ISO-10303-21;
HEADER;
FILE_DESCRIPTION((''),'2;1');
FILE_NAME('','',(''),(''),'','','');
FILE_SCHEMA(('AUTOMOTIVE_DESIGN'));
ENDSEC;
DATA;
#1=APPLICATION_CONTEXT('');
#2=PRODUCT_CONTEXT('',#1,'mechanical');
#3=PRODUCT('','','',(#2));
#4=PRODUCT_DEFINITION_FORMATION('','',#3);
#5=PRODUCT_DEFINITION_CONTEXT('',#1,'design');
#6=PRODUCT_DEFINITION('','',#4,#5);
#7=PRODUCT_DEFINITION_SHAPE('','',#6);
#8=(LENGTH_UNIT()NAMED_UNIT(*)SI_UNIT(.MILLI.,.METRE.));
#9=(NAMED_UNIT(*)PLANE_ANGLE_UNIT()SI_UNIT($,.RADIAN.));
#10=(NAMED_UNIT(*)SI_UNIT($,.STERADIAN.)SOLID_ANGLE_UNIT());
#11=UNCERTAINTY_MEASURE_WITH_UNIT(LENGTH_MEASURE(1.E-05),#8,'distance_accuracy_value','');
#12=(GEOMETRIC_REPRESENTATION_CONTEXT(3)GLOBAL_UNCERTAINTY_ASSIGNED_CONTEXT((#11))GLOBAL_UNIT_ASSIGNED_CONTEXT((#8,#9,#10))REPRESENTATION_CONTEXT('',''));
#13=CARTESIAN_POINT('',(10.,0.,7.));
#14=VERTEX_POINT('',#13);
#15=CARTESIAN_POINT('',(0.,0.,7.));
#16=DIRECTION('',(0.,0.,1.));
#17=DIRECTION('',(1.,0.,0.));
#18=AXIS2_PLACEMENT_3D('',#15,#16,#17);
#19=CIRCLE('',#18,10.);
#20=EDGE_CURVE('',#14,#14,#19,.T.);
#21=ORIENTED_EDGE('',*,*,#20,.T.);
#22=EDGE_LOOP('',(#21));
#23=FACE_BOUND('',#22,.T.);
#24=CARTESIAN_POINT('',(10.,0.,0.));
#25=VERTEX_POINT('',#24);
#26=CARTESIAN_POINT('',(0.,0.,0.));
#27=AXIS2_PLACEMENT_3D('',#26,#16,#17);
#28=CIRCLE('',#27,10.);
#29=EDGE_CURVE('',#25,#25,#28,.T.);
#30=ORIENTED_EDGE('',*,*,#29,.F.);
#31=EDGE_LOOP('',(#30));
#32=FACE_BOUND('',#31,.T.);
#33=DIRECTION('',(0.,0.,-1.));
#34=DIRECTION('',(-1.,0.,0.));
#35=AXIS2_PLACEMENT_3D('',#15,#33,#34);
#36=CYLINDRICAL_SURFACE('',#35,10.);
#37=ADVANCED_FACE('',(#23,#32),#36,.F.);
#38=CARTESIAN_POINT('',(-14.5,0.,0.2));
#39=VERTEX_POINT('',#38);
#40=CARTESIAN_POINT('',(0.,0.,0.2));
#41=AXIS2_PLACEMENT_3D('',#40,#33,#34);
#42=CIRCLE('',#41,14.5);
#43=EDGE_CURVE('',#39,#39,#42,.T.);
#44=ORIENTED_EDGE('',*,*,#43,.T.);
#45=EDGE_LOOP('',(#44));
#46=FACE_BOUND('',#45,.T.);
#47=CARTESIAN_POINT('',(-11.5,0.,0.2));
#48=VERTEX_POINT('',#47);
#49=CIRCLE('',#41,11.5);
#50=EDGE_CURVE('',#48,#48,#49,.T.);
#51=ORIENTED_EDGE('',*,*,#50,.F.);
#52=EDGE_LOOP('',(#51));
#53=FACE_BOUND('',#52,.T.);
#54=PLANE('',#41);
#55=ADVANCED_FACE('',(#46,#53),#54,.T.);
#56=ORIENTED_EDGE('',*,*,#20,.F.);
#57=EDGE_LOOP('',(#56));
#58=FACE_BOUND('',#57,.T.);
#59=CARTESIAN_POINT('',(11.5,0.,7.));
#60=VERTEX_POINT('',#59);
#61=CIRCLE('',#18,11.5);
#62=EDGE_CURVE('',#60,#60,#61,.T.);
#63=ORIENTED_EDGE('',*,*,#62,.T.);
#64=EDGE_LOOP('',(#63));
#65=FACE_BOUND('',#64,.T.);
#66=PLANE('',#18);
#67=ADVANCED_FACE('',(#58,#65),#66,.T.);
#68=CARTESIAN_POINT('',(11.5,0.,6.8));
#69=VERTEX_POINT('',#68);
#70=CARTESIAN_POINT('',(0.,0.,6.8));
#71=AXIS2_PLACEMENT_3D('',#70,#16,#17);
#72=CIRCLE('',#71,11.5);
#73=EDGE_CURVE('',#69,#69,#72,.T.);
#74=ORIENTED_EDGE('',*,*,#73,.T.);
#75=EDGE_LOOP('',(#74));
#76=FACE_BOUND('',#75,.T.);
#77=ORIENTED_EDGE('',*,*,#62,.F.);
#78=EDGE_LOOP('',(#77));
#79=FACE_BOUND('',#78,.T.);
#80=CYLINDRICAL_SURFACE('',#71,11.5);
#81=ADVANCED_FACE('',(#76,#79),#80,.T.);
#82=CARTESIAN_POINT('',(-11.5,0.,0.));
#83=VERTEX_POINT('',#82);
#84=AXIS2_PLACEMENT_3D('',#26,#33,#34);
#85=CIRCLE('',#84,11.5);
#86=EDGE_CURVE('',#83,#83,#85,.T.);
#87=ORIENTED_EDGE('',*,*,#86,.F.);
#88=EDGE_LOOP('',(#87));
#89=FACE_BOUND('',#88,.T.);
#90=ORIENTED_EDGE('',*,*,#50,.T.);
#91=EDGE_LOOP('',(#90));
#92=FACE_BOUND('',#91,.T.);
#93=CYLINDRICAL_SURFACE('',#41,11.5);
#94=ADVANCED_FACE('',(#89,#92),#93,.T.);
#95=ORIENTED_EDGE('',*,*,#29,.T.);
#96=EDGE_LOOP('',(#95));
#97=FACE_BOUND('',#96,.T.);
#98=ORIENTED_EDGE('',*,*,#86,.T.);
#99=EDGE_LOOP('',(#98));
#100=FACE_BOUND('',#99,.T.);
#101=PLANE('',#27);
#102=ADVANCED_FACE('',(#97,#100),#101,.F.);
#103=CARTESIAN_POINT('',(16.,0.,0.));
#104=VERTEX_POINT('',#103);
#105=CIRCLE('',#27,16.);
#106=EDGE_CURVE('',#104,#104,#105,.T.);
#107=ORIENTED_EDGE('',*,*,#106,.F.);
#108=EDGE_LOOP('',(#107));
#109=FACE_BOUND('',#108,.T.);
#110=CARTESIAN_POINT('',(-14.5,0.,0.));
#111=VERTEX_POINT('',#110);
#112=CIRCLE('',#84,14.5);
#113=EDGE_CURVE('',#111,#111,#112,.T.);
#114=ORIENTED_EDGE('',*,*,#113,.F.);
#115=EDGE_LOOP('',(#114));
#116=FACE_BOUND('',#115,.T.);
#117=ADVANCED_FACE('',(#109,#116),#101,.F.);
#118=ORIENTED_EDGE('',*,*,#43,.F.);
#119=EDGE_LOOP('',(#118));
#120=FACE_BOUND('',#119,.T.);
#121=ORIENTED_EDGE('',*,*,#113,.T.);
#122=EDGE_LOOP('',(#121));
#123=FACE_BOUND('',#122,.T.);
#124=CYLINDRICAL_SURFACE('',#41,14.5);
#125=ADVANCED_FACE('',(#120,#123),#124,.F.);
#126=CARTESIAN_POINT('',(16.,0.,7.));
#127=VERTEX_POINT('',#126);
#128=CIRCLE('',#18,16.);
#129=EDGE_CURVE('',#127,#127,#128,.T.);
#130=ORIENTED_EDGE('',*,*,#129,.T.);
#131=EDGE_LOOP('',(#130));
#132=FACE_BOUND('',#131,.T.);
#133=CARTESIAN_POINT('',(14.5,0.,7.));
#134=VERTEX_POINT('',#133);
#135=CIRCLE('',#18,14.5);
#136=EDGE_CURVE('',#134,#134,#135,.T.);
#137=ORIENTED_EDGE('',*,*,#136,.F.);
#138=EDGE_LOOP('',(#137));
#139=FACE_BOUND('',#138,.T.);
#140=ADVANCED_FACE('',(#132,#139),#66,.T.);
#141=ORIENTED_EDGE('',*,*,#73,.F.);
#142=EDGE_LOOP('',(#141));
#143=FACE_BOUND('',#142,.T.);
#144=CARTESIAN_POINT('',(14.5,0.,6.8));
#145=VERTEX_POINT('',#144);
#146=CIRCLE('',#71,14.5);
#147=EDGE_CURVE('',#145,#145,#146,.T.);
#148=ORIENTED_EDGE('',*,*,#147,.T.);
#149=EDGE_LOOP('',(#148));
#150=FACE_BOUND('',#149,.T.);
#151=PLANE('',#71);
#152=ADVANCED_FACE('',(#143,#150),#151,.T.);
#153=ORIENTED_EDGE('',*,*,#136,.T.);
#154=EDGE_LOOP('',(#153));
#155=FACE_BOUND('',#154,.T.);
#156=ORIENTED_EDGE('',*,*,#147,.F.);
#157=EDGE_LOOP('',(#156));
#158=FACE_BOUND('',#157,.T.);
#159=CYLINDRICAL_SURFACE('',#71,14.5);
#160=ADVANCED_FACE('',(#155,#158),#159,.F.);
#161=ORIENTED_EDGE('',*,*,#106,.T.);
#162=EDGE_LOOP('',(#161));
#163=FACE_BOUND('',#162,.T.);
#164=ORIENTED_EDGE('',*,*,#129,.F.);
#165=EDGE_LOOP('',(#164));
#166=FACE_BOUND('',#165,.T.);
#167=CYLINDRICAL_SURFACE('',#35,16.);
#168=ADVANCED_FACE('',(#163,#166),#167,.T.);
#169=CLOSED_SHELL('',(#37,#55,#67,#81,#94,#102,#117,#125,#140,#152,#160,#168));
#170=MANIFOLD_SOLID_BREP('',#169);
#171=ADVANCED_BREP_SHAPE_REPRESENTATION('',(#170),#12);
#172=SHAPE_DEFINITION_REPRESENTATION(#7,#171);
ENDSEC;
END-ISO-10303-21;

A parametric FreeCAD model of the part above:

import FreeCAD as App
import Part
import Sketcher
from FreeCAD import Vector

doc = App.newDocument("Part")
body = doc.addObject("PartDesign::Body", "Body")

# Sketch on XY plane
sketch1 = doc.addObject("Sketcher::SketchObject", "Sketch")
body.addObject(sketch1)
sketch1.AttachmentSupport = (doc.XY_Plane, [""])
sketch1.MapMode = "FlatFace"
sketch1.addGeometry([
    Part.Circle(Vector(0, 0, 0), Vector(0, 0, 1), 16),
    Part.Circle(Vector(0, 0, 0), Vector(0, 0, 1), 10),
], False)
sketch1.addConstraint([
    Sketcher.Constraint("Coincident", 0, 3, -1, 1),
    Sketcher.Constraint("Coincident", 1, 3, -1, 1),
    Sketcher.Constraint("Diameter", 0, 32.0),
    Sketcher.Constraint("Diameter", 1, 20.0),
])
pad1 = doc.addObject("PartDesign::Pad", "Pad")
body.addObject(pad1)
pad1.Profile = sketch1
pad1.Length = 7

# Sketch on XY plane
sketch2 = doc.addObject("Sketcher::SketchObject", "Sketch001")
body.addObject(sketch2)
sketch2.AttachmentSupport = (doc.XY_Plane, [""])
sketch2.MapMode = "FlatFace"
sketch2.AttachmentOffset = App.Placement(Vector(0, 0, 7), App.Rotation())
sketch2.addGeometry([
    Part.Circle(Vector(0, 0, 0), Vector(0, 0, 1), 14),
    Part.Circle(Vector(0, 0, 0), Vector(0, 0, 1), 12),
], False)
sketch2.addConstraint([
    Sketcher.Constraint("Coincident", 0, 3, -1, 1),
    Sketcher.Constraint("Coincident", 1, 3, -1, 1),
    Sketcher.Constraint("Diameter", 0, 29.0),
    Sketcher.Constraint("Diameter", 1, 23.0),
])
pocket1 = doc.addObject("PartDesign::Pocket", "Pocket")
body.addObject(pocket1)
pocket1.Profile = sketch2
pocket1.Length = 0.2

# Sketch on XY plane
sketch3 = doc.addObject("Sketcher::SketchObject", "Sketch002")
body.addObject(sketch3)
sketch3.AttachmentSupport = (doc.XY_Plane, [""])
sketch3.MapMode = "FlatFace"
sketch3.addGeometry([
    Part.Circle(Vector(0, 0, 0), Vector(0, 0, 1), 14),
    Part.Circle(Vector(0, 0, 0), Vector(0, 0, 1), 12),
], False)
sketch3.addConstraint([
    Sketcher.Constraint("Coincident", 0, 3, -1, 1),
    Sketcher.Constraint("Coincident", 1, 3, -1, 1),
    Sketcher.Constraint("Diameter", 0, 29.0),
    Sketcher.Constraint("Diameter", 1, 23.0),
])
pocket2 = doc.addObject("PartDesign::Pocket", "Pocket001")
body.addObject(pocket2)
pocket2.Profile = sketch3
pocket2.Length = 0.2
pocket2.Reversed = True

doc.recompute()
